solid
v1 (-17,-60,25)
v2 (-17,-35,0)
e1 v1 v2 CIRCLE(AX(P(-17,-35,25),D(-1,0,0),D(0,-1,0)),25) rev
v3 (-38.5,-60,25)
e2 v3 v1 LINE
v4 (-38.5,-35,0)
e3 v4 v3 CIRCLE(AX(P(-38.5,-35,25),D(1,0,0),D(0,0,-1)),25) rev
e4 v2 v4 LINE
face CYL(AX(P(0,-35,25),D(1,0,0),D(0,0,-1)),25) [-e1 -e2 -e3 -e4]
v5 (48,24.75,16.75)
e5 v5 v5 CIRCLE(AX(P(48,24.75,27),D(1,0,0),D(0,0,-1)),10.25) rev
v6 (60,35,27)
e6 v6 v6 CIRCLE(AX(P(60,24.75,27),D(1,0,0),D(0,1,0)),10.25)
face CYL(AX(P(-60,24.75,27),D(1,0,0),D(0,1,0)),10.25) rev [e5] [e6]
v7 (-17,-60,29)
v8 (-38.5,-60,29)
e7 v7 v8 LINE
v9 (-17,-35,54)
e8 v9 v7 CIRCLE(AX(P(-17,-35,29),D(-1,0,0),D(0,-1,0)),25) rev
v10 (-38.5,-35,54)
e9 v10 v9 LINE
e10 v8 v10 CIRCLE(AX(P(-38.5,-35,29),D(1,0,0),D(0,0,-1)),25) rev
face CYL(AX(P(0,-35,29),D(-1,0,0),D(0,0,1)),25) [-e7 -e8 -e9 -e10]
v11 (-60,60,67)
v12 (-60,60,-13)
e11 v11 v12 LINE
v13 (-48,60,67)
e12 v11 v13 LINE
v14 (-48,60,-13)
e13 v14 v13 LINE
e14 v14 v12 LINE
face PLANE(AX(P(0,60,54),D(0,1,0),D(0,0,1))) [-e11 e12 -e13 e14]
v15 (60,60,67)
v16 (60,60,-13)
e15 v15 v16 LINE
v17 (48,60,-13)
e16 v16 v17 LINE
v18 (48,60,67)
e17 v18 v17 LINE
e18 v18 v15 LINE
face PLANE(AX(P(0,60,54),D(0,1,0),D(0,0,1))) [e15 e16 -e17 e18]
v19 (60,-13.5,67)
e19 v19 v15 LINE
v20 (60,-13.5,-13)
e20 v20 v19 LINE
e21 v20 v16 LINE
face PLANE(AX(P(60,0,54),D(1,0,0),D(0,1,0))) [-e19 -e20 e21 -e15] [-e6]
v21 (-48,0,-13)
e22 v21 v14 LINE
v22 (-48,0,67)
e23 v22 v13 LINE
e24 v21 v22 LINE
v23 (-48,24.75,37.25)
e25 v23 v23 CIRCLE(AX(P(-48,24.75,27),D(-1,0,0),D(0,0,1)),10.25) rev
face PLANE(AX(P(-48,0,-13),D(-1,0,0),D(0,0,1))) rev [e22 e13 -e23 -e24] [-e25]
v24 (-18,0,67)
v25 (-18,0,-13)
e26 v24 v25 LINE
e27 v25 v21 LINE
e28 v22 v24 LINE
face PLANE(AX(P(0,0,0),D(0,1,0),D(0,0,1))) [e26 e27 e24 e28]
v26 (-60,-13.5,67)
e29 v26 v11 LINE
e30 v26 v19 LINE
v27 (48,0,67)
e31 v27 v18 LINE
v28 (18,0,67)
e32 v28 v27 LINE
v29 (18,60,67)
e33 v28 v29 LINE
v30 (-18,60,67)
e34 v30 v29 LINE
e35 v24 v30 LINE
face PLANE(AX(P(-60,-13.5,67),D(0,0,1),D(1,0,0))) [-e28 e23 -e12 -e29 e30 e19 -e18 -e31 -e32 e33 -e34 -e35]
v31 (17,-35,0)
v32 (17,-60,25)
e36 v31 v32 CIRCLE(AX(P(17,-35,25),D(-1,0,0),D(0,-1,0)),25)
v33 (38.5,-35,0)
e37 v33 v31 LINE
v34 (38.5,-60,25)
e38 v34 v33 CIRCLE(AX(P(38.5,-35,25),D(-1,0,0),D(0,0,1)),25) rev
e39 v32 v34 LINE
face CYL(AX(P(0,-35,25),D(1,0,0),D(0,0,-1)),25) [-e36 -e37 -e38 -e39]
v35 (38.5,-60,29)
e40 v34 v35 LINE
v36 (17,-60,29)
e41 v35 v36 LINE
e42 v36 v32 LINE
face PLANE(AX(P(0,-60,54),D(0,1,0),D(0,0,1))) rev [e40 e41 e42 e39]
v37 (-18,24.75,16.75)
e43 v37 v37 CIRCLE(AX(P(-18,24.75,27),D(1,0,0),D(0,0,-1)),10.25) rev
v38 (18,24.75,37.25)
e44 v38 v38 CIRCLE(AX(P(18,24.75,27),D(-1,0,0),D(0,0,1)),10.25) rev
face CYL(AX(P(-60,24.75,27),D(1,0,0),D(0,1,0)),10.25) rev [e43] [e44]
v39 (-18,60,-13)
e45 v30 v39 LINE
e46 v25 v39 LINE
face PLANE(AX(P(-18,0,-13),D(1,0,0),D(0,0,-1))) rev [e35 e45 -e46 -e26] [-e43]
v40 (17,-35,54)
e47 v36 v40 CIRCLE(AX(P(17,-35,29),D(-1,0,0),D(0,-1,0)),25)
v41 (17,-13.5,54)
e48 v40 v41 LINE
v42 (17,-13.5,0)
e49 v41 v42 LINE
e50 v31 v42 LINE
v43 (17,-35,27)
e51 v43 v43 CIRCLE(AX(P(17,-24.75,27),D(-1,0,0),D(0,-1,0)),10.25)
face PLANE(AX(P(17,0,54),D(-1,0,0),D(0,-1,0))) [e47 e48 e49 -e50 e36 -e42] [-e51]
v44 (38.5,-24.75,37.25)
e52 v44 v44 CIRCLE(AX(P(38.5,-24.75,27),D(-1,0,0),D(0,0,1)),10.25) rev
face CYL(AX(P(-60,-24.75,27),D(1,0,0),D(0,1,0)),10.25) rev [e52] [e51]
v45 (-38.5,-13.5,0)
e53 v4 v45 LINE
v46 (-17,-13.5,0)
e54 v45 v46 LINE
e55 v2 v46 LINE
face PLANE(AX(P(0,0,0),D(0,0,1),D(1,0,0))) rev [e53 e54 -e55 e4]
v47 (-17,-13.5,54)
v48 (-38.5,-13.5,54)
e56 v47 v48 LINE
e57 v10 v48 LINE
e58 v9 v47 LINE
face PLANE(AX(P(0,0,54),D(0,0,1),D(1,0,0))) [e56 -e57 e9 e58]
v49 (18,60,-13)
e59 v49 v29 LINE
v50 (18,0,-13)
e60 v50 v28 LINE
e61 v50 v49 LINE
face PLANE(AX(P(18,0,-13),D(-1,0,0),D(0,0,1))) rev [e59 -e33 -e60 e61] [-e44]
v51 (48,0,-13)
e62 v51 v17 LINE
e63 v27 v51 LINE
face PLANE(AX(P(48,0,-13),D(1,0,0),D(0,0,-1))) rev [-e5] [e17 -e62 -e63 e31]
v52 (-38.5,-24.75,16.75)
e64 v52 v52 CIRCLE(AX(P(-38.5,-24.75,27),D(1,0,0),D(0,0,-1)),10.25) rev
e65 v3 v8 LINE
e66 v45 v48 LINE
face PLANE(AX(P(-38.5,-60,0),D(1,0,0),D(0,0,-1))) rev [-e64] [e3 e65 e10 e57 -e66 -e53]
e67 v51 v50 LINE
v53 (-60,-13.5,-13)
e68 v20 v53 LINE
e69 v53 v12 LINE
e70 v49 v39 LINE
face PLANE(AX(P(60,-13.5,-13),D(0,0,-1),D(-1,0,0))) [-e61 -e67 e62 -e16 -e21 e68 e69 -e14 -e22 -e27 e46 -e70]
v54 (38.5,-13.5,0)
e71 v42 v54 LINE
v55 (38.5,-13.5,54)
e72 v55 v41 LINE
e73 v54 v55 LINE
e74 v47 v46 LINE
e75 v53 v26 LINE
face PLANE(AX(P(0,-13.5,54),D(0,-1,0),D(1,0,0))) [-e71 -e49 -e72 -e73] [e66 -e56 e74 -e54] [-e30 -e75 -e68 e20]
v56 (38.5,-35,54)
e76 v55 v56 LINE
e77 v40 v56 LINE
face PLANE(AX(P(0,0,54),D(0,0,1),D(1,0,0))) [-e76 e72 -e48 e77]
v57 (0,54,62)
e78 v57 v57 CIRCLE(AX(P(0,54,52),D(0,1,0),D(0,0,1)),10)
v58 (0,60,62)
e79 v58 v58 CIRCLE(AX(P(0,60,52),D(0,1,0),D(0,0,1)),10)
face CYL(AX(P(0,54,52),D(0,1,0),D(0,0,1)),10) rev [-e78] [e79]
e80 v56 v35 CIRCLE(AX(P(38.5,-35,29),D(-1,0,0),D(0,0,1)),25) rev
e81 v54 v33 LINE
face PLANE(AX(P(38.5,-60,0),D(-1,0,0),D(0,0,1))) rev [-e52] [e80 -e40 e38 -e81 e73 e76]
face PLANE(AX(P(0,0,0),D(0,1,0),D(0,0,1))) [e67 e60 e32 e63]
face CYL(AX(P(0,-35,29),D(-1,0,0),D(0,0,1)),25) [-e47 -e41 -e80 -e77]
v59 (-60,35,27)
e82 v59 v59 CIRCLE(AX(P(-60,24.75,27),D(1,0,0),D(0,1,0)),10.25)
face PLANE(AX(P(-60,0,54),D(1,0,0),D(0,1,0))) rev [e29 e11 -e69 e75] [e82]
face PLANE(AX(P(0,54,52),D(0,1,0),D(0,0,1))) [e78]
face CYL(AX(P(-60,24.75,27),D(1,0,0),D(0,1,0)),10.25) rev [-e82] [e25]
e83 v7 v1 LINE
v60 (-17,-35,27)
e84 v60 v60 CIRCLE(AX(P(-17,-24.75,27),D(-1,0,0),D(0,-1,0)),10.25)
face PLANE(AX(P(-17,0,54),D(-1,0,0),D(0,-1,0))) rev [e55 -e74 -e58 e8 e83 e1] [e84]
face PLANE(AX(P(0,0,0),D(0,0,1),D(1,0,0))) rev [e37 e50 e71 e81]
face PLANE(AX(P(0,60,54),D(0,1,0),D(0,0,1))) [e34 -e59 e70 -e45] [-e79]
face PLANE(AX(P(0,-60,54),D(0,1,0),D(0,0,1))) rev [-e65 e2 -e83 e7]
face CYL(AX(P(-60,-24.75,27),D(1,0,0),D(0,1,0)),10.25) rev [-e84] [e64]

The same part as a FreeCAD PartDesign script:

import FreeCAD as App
import Part
import Sketcher
from FreeCAD import Vector


def edges_at(feature, points):
    """Names of the edges that pass closest to the given points."""
    edges = feature.Shape.Edges
    near = lambda p: min(range(len(edges)), key=lambda i: edges[i].distToShape(Part.Vertex(*p))[0])
    return sorted({f"Edge{near(p) + 1}" for p in points})


def add_polygon(sketch, points):
    """Adds a closed chain of lines whose ends are joined by coincident constraints."""
    first, n = sketch.GeometryCount, len(points)
    for a, b in zip(points, points[1:] + points[:1]):
        sketch.addGeometry(Part.LineSegment(App.Vector(*a, 0), App.Vector(*b, 0)), False)
    for i in range(n):
        sketch.addConstraint(Sketcher.Constraint("Coincident", first + i, 2, first + (i + 1) % n, 1))

doc = App.newDocument("Part")
body = doc.addObject("PartDesign::Body", "Body")

sketch1 = doc.addObject("Sketcher::SketchObject", "Sketch")
body.addObject(sketch1)
sketch1.AttachmentSupport = (doc.XY_Plane, [""])
sketch1.MapMode = "FlatFace"
add_polygon(sketch1, [(60, 60), (-60, 60), (-60, -60), (-17, -60), (-17, -14), (17, -14), (17, -60), (60, -60)])
sketch1.addConstraint([
    Sketcher.Constraint("Horizontal", 0),
    Sketcher.Constraint("Vertical", 1),
    Sketcher.Constraint("Horizontal", 2),
    Sketcher.Constraint("Vertical", 3),
    Sketcher.Constraint("Horizontal", 4),
    Sketcher.Constraint("Vertical", 5),
    Sketcher.Constraint("Horizontal", 6),
    Sketcher.Constraint("Vertical", 7),
    Sketcher.Constraint("Symmetric", 0, 2, 6, 2, -1, 1),
    Sketcher.Constraint("Symmetric", 2, 2, 5, 2, -2),
    Sketcher.Constraint("Equal", 0, 1),
    Sketcher.Constraint("DistanceX", 0, 2, 0, 1, 120.0),
    Sketcher.Constraint("DistanceX", 2, 1, 2, 2, 43.0),
    Sketcher.Constraint("DistanceY", 3, 1, 3, 2, 46.5),
])
pad1 = doc.addObject("PartDesign::Pad", "Pad")
body.addObject(pad1)
pad1.Profile = sketch1
pad1.Length = 54

sketch2 = doc.addObject("Sketcher::SketchObject", "Sketch001")
body.addObject(sketch2)
sketch2.AttachmentSupport = (doc.YZ_Plane, [""])
sketch2.MapMode = "FlatFace"
sketch2.AttachmentOffset = App.Placement(Vector(0, 0, 60), App.Rotation())
sketch2.addGeometry(Part.Circle(Vector(-25, 27, 0), Vector(0, 0, 1), 10), False)
sketch2.addConstraint([
    Sketcher.Constraint("Diameter", 0, 20.5),
    Sketcher.Constraint("DistanceY", -1, 1, 0, 3, 27.0),
    Sketcher.Constraint("DistanceX", 0, 3, -1, 1, 24.75),
])
pocket1 = doc.addObject("PartDesign::Pocket", "Pocket")
body.addObject(pocket1)
pocket1.Profile = sketch2
pocket1.Type = "ThroughAll"
pocket1.Midplane = True

sketch3 = doc.addObject("Sketcher::SketchObject", "Sketch002")
body.addObject(sketch3)
sketch3.AttachmentSupport = (doc.YZ_Plane, [""])
sketch3.MapMode = "FlatFace"
sketch3.AttachmentOffset = App.Placement(Vector(0, 0, 60), App.Rotation())
sketch3.addGeometry(Part.Circle(Vector(25, 27, 0), Vector(0, 0, 1), 10), False)
sketch3.addConstraint([
    Sketcher.Constraint("Diameter", 0, 20.5),
    Sketcher.Constraint("DistanceY", -1, 1, 0, 3, 27.0),
    Sketcher.Constraint("DistanceX", -1, 1, 0, 3, 24.75),
])
pocket2 = doc.addObject("PartDesign::Pocket", "Pocket001")
body.addObject(pocket2)
pocket2.Profile = sketch3
pocket2.Type = "ThroughAll"
pocket2.Midplane = True

sketch4 = doc.addObject("Sketcher::SketchObject", "Sketch003")
body.addObject(sketch4)
sketch4.AttachmentSupport = (doc.XY_Plane, [""])
sketch4.MapMode = "FlatFace"
sketch4.AttachmentOffset = App.Placement(Vector(0, 0, 54), App.Rotation())
add_polygon(sketch4, [(-60, -14), (-60, -60), (-38, -60), (-38, -14)])
add_polygon(sketch4, [(38, -14), (38, -60), (60, -60), (60, -14)])
sketch4.addConstraint([
    Sketcher.Constraint("Vertical", 0),
    Sketcher.Constraint("Horizontal", 1),
    Sketcher.Constraint("Vertical", 2),
    Sketcher.Constraint("Horizontal", 3),
    Sketcher.Constraint("Vertical", 4),
    Sketcher.Constraint("Horizontal", 5),
    Sketcher.Constraint("Vertical", 6),
    Sketcher.Constraint("Horizontal", 7),
    Sketcher.Constraint("Symmetric", 1, 2, 4, 2, -2),
    Sketcher.Constraint("Symmetric", 3, 2, 6, 2, -2),
    Sketcher.Constraint("DistanceX", 1, 1, 1, 2, 21.5),
    Sketcher.Constraint("DistanceY", 0, 2, 0, 1, 46.5),
    Sketcher.Constraint("DistanceX", 0, 2, -1, 1, 60.0),
    Sketcher.Constraint("DistanceY", 0, 2, -1, 1, 60.0),
])
pocket3 = doc.addObject("PartDesign::Pocket", "Pocket002")
body.addObject(pocket3)
pocket3.Profile = sketch4
pocket3.Type = "ThroughAll"
pocket3.Midplane = True
doc.recompute()

fillet = doc.addObject("PartDesign::Fillet", "Fillet")
body.addObject(fillet)
fillet.Base = (pocket3, edges_at(pocket3, [
    (27.75, -60, 0),
    (27.75, -60, 54),
    (-27.75, -60, 0),
    (-27.75, -60, 54),
]))
fillet.Radius = 25

sketch5 = doc.addObject("Sketcher::SketchObject", "Sketch004")
body.addObject(sketch5)
sketch5.AttachmentSupport = (doc.XZ_Plane, [""])
sketch5.MapMode = "FlatFace"
sketch5.AttachmentOffset = App.Placement(Vector(0, 0, -60), App.Rotation())
add_polygon(sketch5, [(-60, -13), (-60, 0), (60, 0), (60, -13)])
add_polygon(sketch5, [(-60, 54), (-60, 67), (60, 67), (60, 54)])
sketch5.addConstraint([
    Sketcher.Constraint("Vertical", 0),
    Sketcher.Constraint("Horizontal", 1),
    Sketcher.Constraint("Vertical", 2),
    Sketcher.Constraint("Horizontal", 3),
    Sketcher.Constraint("Vertical", 4),
    Sketcher.Constraint("Horizontal", 5),
    Sketcher.Constraint("Vertical", 6),
    Sketcher.Constraint("Horizontal", 7),
    Sketcher.Constraint("Symmetric", 0, 2, 1, 2, -1, 1),
    Sketcher.Constraint("Vertical", 3, 2, 4, 2),
    Sketcher.Constraint("Vertical", 2, 2, 5, 2),
    Sketcher.Constraint("Equal", 2, 4),
    Sketcher.Constraint("DistanceX", 1, 1, 1, 2, 120.0),
    Sketcher.Constraint("DistanceY", 0, 1, 0, 2, 13.0),
    Sketcher.Constraint("DistanceY", -1, 1, 4, 2, 67.0),
])
pad2 = doc.addObject("PartDesign::Pad", "Pad001")
body.addObject(pad2)
pad2.Profile = sketch5
pad2.Length = 73.5

sketch6 = doc.addObject("Sketcher::SketchObject", "Sketch005")
body.addObject(sketch6)
sketch6.AttachmentSupport = (doc.XZ_Plane, [""])
sketch6.MapMode = "FlatFace"
sketch6.AttachmentOffset = App.Placement(Vector(0, 0, -60), App.Rotation())
add_polygon(sketch6, [(-48, -13), (-48, 67), (-18, 67), (-18, -13)])
add_polygon(sketch6, [(18, -13), (18, 67), (48, 67), (48, -13)])
sketch6.addConstraint([
    Sketcher.Constraint("Vertical", 0),
    Sketcher.Constraint("Horizontal", 1),
    Sketcher.Constraint("Vertical", 2),
    Sketcher.Constraint("Horizontal", 3),
    Sketcher.Constraint("Vertical", 4),
    Sketcher.Constraint("Horizontal", 5),
    Sketcher.Constraint("Vertical", 6),
    Sketcher.Constraint("Horizontal", 7),
    Sketcher.Constraint("Symmetric", 1, 2, 4, 2, -2),
    Sketcher.Constraint("Symmetric", 3, 2, 6, 2, -2),
    Sketcher.Constraint("DistanceX", 1, 1, 1, 2, 30.0),
    Sketcher.Constraint("DistanceY", 0, 1, 0, 2, 80.0),
    Sketcher.Constraint("DistanceX", 0, 2, -1, 1, 48.0),
    Sketcher.Constraint("DistanceY", -1, 1, 0, 2, 67.0),
])
pocket4 = doc.addObject("PartDesign::Pocket", "Pocket003")
body.addObject(pocket4)
pocket4.Profile = sketch6
pocket4.Length = 60
pocket4.Reversed = True

sketch7 = doc.addObject("Sketcher::SketchObject", "Sketch006")
body.addObject(sketch7)
sketch7.AttachmentSupport = (doc.XZ_Plane, [""])
sketch7.MapMode = "FlatFace"
sketch7.AttachmentOffset = App.Placement(Vector(0, 0, -60), App.Rotation())
sketch7.addGeometry(Part.Circle(Vector(0, 52, 0), Vector(0, 0, 1), 10), False)
sketch7.addConstraint([
    Sketcher.Constraint("PointOnObject", 0, 3, -2),
    Sketcher.Constraint("Diameter", 0, 20.0),
    Sketcher.Constraint("DistanceY", -1, 1, 0, 3, 52.0),
])
pocket5 = doc.addObject("PartDesign::Pocket", "Pocket004")
body.addObject(pocket5)
pocket5.Profile = sketch7
pocket5.Length = 6
pocket5.Reversed = True

doc.recompute()
